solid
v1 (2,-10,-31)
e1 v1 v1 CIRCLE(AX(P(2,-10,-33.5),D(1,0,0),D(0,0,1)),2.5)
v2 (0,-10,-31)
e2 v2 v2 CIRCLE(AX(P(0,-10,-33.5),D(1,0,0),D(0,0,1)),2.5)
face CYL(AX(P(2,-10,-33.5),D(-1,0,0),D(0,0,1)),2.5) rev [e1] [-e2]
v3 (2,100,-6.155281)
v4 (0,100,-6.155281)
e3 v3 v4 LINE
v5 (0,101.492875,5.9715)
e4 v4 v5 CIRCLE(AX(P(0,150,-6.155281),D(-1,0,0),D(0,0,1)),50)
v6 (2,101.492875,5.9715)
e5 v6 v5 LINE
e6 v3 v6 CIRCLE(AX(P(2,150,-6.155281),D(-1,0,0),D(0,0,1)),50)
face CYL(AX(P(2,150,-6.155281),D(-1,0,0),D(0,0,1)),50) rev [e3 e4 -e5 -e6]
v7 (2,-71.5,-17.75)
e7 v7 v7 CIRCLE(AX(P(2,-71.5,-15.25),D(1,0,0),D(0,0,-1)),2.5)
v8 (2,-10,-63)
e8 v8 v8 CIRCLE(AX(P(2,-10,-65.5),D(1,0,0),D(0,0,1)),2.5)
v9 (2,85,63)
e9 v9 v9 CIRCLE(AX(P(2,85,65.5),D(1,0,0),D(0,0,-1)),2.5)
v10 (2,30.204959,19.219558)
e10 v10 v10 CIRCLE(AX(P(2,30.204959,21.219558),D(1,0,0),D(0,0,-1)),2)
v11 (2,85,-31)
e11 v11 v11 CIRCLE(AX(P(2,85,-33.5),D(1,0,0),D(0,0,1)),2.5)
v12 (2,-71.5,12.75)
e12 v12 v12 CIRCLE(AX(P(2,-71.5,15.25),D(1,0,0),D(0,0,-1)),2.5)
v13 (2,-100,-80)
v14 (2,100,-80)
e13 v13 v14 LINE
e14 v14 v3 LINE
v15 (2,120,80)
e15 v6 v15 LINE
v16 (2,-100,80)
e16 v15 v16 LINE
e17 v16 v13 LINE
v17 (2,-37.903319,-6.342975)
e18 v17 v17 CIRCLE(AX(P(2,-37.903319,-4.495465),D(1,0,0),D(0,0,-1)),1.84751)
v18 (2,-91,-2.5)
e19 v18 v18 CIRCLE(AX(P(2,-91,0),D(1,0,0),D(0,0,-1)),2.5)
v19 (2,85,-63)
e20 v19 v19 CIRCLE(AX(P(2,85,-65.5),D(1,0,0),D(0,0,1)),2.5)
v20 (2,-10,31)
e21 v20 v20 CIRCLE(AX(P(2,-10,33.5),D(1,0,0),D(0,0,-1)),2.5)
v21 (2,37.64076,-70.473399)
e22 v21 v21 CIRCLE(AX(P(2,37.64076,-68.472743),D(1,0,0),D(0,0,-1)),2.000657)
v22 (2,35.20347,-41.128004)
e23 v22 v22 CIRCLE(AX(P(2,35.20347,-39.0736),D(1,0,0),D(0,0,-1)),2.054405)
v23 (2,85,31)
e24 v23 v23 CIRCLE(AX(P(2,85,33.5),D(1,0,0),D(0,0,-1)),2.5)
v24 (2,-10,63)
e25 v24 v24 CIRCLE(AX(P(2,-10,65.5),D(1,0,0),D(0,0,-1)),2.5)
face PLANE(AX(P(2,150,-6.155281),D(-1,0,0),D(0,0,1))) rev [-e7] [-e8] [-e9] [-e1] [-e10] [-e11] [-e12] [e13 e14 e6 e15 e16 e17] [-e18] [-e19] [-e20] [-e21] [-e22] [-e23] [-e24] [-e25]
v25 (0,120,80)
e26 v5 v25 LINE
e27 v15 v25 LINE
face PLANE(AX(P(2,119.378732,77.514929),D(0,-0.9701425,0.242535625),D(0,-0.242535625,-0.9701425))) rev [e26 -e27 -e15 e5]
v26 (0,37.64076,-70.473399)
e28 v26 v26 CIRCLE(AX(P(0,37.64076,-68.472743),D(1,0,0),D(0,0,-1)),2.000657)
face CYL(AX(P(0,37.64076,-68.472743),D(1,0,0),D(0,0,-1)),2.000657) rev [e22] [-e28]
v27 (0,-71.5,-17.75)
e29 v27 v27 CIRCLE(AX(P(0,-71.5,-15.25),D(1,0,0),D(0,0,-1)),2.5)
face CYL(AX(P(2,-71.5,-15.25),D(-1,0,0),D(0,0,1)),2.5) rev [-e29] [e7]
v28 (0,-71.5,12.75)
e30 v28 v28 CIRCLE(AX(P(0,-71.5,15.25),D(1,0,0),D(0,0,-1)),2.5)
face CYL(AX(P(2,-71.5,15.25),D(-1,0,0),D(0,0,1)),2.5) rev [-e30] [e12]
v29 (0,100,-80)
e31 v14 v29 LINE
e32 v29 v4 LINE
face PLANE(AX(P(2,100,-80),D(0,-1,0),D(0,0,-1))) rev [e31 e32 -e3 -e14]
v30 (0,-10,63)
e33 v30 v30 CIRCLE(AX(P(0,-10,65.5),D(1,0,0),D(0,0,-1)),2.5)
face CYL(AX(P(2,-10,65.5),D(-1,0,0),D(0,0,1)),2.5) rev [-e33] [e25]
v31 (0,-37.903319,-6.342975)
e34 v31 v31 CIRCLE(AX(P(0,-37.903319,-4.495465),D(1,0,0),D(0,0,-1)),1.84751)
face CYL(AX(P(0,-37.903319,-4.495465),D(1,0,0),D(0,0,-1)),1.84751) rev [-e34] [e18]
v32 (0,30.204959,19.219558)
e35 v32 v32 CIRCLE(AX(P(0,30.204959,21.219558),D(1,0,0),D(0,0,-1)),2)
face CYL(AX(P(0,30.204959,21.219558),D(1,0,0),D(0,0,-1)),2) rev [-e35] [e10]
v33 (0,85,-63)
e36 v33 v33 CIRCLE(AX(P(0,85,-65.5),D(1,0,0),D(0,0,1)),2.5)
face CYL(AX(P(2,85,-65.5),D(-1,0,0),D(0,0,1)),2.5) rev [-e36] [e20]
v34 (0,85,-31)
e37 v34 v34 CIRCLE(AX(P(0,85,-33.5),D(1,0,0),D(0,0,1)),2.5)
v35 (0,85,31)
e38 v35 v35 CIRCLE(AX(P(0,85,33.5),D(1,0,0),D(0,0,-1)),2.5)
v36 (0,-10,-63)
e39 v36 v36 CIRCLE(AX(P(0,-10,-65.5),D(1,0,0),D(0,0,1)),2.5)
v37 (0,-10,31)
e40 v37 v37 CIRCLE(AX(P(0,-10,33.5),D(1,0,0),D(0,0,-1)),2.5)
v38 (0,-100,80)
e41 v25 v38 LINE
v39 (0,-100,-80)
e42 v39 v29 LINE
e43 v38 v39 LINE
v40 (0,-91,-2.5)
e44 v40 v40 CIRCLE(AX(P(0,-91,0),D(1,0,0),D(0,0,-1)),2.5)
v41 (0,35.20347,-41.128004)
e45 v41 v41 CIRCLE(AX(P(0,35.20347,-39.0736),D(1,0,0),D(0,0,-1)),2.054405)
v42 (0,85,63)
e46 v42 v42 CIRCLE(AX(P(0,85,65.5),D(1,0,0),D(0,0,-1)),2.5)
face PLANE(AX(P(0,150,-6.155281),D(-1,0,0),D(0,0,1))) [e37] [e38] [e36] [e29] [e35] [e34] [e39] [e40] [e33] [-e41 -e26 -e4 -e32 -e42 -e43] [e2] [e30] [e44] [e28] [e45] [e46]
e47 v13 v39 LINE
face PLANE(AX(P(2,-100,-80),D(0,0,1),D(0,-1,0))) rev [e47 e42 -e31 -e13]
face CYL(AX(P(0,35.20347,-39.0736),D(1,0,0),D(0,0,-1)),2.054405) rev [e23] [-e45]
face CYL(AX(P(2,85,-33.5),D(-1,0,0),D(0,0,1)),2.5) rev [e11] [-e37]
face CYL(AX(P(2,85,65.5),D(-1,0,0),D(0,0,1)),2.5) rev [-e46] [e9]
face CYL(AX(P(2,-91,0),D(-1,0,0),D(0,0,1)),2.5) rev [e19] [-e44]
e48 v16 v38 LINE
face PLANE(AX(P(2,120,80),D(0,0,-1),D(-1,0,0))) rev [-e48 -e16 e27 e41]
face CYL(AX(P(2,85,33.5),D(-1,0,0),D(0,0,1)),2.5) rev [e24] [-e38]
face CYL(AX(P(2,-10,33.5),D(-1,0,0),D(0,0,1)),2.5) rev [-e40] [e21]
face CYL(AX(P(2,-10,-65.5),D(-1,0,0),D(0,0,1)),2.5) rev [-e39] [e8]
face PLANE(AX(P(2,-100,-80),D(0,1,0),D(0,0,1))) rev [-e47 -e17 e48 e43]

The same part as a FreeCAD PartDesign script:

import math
import FreeCAD as App
import Part
import Sketcher
Q = App.Units.Quantity

doc = App.newDocument("Part")
body = doc.addObject("PartDesign::Body", "Body")

# Sketch on YZ plane
sketch1 = body.newObject("Sketcher::SketchObject", "Sketch")
sketch1.AttachmentSupport = (doc.getObject("YZ_Plane"), [""])
sketch1.MapMode = "FlatFace"
sketch1.addGeometry(Part.LineSegment(App.Vector(-100, 80, 0), App.Vector(-100, -80, 0)), False)
sketch1.addGeometry(Part.LineSegment(App.Vector(-100, -80, 0), App.Vector(100, -80, 0)), False)
sketch1.addGeometry(Part.LineSegment(App.Vector(100, -80, 0), App.Vector(100, -6.2, 0)), False)
sketch1.addGeometry(Part.ArcOfCircle(Part.Circle(App.Vector(150, -6.2, 0), App.Vector(0, 0, 1), 50), math.radians(165.96), math.radians(180)), False)
sketch1.addGeometry(Part.LineSegment(App.Vector(101.5, 6, 0), App.Vector(119.4, 77.5, 0)), False)
sketch1.addGeometry(Part.LineSegment(App.Vector(119.4, 77.5, 0), App.Vector(120, 80, 0)), False)
sketch1.addGeometry(Part.LineSegment(App.Vector(120, 80, 0), App.Vector(-100, 80, 0)), False)
sketch1.addGeometry(Part.Circle(App.Vector(-71.5, -15.2, 0), App.Vector(0, 0, 1), 2.5), False)
sketch1.addGeometry(Part.Circle(App.Vector(-10, -65.5, 0), App.Vector(0, 0, 1), 2.5), False)
sketch1.addGeometry(Part.Circle(App.Vector(-10, -33.5, 0), App.Vector(0, 0, 1), 2.5), False)
sketch1.addGeometry(Part.Circle(App.Vector(-91, 0, 0), App.Vector(0, 0, 1), 2.5), False)
sketch1.addGeometry(Part.Circle(App.Vector(-71.5, 15.2, 0), App.Vector(0, 0, 1), 2.5), False)
sketch1.addGeometry(Part.Circle(App.Vector(-10, 33.5, 0), App.Vector(0, 0, 1), 2.5), False)
sketch1.addGeometry(Part.Circle(App.Vector(-10, 65.5, 0), App.Vector(0, 0, 1), 2.5), False)
sketch1.addGeometry(Part.Circle(App.Vector(85, -65.5, 0), App.Vector(0, 0, 1), 2.5), False)
sketch1.addGeometry(Part.Circle(App.Vector(85, -33.5, 0), App.Vector(0, 0, 1), 2.5), False)
sketch1.addGeometry(Part.Circle(App.Vector(85, 33.5, 0), App.Vector(0, 0, 1), 2.5), False)
sketch1.addGeometry(Part.Circle(App.Vector(85, 65.5, 0), App.Vector(0, 0, 1), 2.5), False)
sketch1.addConstraint(Sketcher.Constraint("Coincident", 0, 2, 1, 1))
sketch1.addConstraint(Sketcher.Constraint("Coincident", 1, 2, 2, 1))
sketch1.addConstraint(Sketcher.Constraint("Tangent", 2, 2, 3, 2))
sketch1.addConstraint(Sketcher.Constraint("Tangent", 3, 1, 4, 1))
sketch1.addConstraint(Sketcher.Constraint("Coincident", 4, 2, 5, 1))
sketch1.addConstraint(Sketcher.Constraint("Coincident", 5, 2, 6, 1))
sketch1.addConstraint(Sketcher.Constraint("Coincident", 6, 2, 0, 1))
sketch1.addConstraint(Sketcher.Constraint("Vertical", 0))
sketch1.addConstraint(Sketcher.Constraint("Horizontal", 1))
sketch1.addConstraint(Sketcher.Constraint("Vertical", 2))
sketch1.addConstraint(Sketcher.Constraint("Horizontal", 6))
sketch1.addConstraint(Sketcher.Constraint("Equal", 7, 8))
sketch1.addConstraint(Sketcher.Constraint("Equal", 8, 9))
sketch1.addConstraint(Sketcher.Constraint("Equal", 9, 10))
sketch1.addConstraint(Sketcher.Constraint("Equal", 10, 11))
sketch1.addConstraint(Sketcher.Constraint("Equal", 11, 12))
sketch1.addConstraint(Sketcher.Constraint("Equal", 12, 13))
sketch1.addConstraint(Sketcher.Constraint("Equal", 13, 14))
sketch1.addConstraint(Sketcher.Constraint("Equal", 14, 15))
sketch1.addConstraint(Sketcher.Constraint("Equal", 15, 16))
sketch1.addConstraint(Sketcher.Constraint("Equal", 16, 17))
sketch1.addConstraint(Sketcher.Constraint("Symmetric", 1, 2, 6, 2, -1, 1))
sketch1.addConstraint(Sketcher.Constraint("Symmetric", 7, 3, 11, 3, -1))
sketch1.addConstraint(Sketcher.Constraint("Symmetric", 9, 3, 12, 3, -1))
sketch1.addConstraint(Sketcher.Constraint("Symmetric", 8, 3, 13, 3, -1))
sketch1.addConstraint(Sketcher.Constraint("Symmetric", 15, 3, 16, 3, -1))
sketch1.addConstraint(Sketcher.Constraint("Symmetric", 14, 3, 17, 3, -1))
sketch1.addConstraint(Sketcher.Constraint("PointOnObject", 10, 3, -1))
sketch1.addConstraint(Sketcher.Constraint("Parallel", 4, 5))
sketch1.addConstraint(Sketcher.Constraint("Horizontal", 8, 3, 14, 3))
sketch1.addConstraint(Sketcher.Constraint("Horizontal", 9, 3, 15, 3))
sketch1.addConstraint(Sketcher.Constraint("Vertical", 8, 3, 9, 3))
sketch1.addConstraint(Sketcher.Constraint("Vertical", 14, 3, 15, 3))
sketch1.addConstraint(Sketcher.Constraint("Diameter", 7, Q("5 mm")))
sketch1.addConstraint(Sketcher.Constraint("Radius", 3, Q("50 mm")))
sketch1.addConstraint(Sketcher.Constraint("DistanceX", 1, 1, 1, 2, Q("200 mm")))
sketch1.addConstraint(Sketcher.Constraint("DistanceX", 6, 2, 6, 1, Q("220 mm")))
sketch1.addConstraint(Sketcher.Constraint("DistanceY", 0, 2, 0, 1, Q("160 mm")))
sketch1.addConstraint(Sketcher.Constraint("DistanceX", 8, 3, -1, 1, Q("10 mm")))
sketch1.addConstraint(Sketcher.Constraint("DistanceX", 10, 3, -1, 1, Q("91 mm")))
sketch1.addConstraint(Sketcher.Constraint("DistanceX", -1, 1, 14, 3, Q("85 mm")))
sketch1.addConstraint(Sketcher.Constraint("DistanceY", 8, 3, 9, 3, Q("32 mm")))
sketch1.addConstraint(Sketcher.Constraint("DistanceY", 9, 3, 12, 3, Q("67 mm")))
sketch1.addConstraint(Sketcher.Constraint("DistanceX", 7, 3, -1, 1, Q("71.5 mm")))
sketch1.addConstraint(Sketcher.Constraint("DistanceY", 7, 3, 11, 3, Q("30.5 mm")))
sketch1.addConstraint(Sketcher.Constraint("DistanceY", 2, 1, 2, 2, Q("73.844719 mm")))
sketch1.addConstraint(Sketcher.Constraint("Distance", 4, Q("73.745278 mm")))
pad1 = body.newObject("PartDesign::Pad", "Pad")
pad1.Profile = sketch1
pad1.Length = 2

# Sketch on YZ plane
sketch2 = body.newObject("Sketcher::SketchObject", "Sketch001")
sketch2.AttachmentSupport = (doc.getObject("YZ_Plane"), [""])
sketch2.MapMode = "FlatFace"
sketch2.AttachmentOffset = App.Placement(App.Vector(0, 0, 2), App.Rotation())
sketch2.addGeometry(Part.Circle(App.Vector(37.6, -68.5, 0), App.Vector(0, 0, 1), 2), False)
sketch2.addGeometry(Part.Circle(App.Vector(35.2, -39.1, 0), App.Vector(0, 0, 1), 2.1), False)
sketch2.addGeometry(Part.Circle(App.Vector(30.2, 21.2, 0), App.Vector(0, 0, 1), 2), False)
sketch2.addGeometry(Part.Circle(App.Vector(-37.9, -4.5, 0), App.Vector(0, 0, 1), 1.8), False)
sketch2.addConstraint(Sketcher.Constraint("Diameter", 2, Q("4 mm")))
sketch2.addConstraint(Sketcher.Constraint("Diameter", 1, Q("4.10881 mm")))
sketch2.addConstraint(Sketcher.Constraint("Diameter", 3, Q("3.695021 mm")))
sketch2.addConstraint(Sketcher.Constraint("Diameter", 0, Q("4.001314 mm")))
sketch2.addConstraint(Sketcher.Constraint("DistanceY", 1, 3, -1, 1, Q("39.0736 mm")))
sketch2.addConstraint(Sketcher.Constraint("DistanceX", 2, 3, 0, 3, Q("7.435801 mm")))
sketch2.addConstraint(Sketcher.Constraint("DistanceY", 0, 3, 2, 3, Q("89.692301 mm")))
sketch2.addConstraint(Sketcher.Constraint("DistanceX", -1, 1, 0, 3, Q("37.64076 mm")))
sketch2.addConstraint(Sketcher.Constraint("DistanceX", -1, 1, 1, 3, Q("35.20347 mm")))
sketch2.addConstraint(Sketcher.Constraint("DistanceY", -1, 1, 2, 3, Q("21.219558 mm")))
sketch2.addConstraint(Sketcher.Constraint("DistanceX", 3, 3, -1, 1, Q("37.903319 mm")))
sketch2.addConstraint(Sketcher.Constraint("DistanceY", 3, 3, -1, 1, Q("4.495465 mm")))
pocket1 = body.newObject("PartDesign::Pocket", "Pocket")
pocket1.Profile = sketch2
pocket1.Type = "ThroughAll"

doc.recompute()
